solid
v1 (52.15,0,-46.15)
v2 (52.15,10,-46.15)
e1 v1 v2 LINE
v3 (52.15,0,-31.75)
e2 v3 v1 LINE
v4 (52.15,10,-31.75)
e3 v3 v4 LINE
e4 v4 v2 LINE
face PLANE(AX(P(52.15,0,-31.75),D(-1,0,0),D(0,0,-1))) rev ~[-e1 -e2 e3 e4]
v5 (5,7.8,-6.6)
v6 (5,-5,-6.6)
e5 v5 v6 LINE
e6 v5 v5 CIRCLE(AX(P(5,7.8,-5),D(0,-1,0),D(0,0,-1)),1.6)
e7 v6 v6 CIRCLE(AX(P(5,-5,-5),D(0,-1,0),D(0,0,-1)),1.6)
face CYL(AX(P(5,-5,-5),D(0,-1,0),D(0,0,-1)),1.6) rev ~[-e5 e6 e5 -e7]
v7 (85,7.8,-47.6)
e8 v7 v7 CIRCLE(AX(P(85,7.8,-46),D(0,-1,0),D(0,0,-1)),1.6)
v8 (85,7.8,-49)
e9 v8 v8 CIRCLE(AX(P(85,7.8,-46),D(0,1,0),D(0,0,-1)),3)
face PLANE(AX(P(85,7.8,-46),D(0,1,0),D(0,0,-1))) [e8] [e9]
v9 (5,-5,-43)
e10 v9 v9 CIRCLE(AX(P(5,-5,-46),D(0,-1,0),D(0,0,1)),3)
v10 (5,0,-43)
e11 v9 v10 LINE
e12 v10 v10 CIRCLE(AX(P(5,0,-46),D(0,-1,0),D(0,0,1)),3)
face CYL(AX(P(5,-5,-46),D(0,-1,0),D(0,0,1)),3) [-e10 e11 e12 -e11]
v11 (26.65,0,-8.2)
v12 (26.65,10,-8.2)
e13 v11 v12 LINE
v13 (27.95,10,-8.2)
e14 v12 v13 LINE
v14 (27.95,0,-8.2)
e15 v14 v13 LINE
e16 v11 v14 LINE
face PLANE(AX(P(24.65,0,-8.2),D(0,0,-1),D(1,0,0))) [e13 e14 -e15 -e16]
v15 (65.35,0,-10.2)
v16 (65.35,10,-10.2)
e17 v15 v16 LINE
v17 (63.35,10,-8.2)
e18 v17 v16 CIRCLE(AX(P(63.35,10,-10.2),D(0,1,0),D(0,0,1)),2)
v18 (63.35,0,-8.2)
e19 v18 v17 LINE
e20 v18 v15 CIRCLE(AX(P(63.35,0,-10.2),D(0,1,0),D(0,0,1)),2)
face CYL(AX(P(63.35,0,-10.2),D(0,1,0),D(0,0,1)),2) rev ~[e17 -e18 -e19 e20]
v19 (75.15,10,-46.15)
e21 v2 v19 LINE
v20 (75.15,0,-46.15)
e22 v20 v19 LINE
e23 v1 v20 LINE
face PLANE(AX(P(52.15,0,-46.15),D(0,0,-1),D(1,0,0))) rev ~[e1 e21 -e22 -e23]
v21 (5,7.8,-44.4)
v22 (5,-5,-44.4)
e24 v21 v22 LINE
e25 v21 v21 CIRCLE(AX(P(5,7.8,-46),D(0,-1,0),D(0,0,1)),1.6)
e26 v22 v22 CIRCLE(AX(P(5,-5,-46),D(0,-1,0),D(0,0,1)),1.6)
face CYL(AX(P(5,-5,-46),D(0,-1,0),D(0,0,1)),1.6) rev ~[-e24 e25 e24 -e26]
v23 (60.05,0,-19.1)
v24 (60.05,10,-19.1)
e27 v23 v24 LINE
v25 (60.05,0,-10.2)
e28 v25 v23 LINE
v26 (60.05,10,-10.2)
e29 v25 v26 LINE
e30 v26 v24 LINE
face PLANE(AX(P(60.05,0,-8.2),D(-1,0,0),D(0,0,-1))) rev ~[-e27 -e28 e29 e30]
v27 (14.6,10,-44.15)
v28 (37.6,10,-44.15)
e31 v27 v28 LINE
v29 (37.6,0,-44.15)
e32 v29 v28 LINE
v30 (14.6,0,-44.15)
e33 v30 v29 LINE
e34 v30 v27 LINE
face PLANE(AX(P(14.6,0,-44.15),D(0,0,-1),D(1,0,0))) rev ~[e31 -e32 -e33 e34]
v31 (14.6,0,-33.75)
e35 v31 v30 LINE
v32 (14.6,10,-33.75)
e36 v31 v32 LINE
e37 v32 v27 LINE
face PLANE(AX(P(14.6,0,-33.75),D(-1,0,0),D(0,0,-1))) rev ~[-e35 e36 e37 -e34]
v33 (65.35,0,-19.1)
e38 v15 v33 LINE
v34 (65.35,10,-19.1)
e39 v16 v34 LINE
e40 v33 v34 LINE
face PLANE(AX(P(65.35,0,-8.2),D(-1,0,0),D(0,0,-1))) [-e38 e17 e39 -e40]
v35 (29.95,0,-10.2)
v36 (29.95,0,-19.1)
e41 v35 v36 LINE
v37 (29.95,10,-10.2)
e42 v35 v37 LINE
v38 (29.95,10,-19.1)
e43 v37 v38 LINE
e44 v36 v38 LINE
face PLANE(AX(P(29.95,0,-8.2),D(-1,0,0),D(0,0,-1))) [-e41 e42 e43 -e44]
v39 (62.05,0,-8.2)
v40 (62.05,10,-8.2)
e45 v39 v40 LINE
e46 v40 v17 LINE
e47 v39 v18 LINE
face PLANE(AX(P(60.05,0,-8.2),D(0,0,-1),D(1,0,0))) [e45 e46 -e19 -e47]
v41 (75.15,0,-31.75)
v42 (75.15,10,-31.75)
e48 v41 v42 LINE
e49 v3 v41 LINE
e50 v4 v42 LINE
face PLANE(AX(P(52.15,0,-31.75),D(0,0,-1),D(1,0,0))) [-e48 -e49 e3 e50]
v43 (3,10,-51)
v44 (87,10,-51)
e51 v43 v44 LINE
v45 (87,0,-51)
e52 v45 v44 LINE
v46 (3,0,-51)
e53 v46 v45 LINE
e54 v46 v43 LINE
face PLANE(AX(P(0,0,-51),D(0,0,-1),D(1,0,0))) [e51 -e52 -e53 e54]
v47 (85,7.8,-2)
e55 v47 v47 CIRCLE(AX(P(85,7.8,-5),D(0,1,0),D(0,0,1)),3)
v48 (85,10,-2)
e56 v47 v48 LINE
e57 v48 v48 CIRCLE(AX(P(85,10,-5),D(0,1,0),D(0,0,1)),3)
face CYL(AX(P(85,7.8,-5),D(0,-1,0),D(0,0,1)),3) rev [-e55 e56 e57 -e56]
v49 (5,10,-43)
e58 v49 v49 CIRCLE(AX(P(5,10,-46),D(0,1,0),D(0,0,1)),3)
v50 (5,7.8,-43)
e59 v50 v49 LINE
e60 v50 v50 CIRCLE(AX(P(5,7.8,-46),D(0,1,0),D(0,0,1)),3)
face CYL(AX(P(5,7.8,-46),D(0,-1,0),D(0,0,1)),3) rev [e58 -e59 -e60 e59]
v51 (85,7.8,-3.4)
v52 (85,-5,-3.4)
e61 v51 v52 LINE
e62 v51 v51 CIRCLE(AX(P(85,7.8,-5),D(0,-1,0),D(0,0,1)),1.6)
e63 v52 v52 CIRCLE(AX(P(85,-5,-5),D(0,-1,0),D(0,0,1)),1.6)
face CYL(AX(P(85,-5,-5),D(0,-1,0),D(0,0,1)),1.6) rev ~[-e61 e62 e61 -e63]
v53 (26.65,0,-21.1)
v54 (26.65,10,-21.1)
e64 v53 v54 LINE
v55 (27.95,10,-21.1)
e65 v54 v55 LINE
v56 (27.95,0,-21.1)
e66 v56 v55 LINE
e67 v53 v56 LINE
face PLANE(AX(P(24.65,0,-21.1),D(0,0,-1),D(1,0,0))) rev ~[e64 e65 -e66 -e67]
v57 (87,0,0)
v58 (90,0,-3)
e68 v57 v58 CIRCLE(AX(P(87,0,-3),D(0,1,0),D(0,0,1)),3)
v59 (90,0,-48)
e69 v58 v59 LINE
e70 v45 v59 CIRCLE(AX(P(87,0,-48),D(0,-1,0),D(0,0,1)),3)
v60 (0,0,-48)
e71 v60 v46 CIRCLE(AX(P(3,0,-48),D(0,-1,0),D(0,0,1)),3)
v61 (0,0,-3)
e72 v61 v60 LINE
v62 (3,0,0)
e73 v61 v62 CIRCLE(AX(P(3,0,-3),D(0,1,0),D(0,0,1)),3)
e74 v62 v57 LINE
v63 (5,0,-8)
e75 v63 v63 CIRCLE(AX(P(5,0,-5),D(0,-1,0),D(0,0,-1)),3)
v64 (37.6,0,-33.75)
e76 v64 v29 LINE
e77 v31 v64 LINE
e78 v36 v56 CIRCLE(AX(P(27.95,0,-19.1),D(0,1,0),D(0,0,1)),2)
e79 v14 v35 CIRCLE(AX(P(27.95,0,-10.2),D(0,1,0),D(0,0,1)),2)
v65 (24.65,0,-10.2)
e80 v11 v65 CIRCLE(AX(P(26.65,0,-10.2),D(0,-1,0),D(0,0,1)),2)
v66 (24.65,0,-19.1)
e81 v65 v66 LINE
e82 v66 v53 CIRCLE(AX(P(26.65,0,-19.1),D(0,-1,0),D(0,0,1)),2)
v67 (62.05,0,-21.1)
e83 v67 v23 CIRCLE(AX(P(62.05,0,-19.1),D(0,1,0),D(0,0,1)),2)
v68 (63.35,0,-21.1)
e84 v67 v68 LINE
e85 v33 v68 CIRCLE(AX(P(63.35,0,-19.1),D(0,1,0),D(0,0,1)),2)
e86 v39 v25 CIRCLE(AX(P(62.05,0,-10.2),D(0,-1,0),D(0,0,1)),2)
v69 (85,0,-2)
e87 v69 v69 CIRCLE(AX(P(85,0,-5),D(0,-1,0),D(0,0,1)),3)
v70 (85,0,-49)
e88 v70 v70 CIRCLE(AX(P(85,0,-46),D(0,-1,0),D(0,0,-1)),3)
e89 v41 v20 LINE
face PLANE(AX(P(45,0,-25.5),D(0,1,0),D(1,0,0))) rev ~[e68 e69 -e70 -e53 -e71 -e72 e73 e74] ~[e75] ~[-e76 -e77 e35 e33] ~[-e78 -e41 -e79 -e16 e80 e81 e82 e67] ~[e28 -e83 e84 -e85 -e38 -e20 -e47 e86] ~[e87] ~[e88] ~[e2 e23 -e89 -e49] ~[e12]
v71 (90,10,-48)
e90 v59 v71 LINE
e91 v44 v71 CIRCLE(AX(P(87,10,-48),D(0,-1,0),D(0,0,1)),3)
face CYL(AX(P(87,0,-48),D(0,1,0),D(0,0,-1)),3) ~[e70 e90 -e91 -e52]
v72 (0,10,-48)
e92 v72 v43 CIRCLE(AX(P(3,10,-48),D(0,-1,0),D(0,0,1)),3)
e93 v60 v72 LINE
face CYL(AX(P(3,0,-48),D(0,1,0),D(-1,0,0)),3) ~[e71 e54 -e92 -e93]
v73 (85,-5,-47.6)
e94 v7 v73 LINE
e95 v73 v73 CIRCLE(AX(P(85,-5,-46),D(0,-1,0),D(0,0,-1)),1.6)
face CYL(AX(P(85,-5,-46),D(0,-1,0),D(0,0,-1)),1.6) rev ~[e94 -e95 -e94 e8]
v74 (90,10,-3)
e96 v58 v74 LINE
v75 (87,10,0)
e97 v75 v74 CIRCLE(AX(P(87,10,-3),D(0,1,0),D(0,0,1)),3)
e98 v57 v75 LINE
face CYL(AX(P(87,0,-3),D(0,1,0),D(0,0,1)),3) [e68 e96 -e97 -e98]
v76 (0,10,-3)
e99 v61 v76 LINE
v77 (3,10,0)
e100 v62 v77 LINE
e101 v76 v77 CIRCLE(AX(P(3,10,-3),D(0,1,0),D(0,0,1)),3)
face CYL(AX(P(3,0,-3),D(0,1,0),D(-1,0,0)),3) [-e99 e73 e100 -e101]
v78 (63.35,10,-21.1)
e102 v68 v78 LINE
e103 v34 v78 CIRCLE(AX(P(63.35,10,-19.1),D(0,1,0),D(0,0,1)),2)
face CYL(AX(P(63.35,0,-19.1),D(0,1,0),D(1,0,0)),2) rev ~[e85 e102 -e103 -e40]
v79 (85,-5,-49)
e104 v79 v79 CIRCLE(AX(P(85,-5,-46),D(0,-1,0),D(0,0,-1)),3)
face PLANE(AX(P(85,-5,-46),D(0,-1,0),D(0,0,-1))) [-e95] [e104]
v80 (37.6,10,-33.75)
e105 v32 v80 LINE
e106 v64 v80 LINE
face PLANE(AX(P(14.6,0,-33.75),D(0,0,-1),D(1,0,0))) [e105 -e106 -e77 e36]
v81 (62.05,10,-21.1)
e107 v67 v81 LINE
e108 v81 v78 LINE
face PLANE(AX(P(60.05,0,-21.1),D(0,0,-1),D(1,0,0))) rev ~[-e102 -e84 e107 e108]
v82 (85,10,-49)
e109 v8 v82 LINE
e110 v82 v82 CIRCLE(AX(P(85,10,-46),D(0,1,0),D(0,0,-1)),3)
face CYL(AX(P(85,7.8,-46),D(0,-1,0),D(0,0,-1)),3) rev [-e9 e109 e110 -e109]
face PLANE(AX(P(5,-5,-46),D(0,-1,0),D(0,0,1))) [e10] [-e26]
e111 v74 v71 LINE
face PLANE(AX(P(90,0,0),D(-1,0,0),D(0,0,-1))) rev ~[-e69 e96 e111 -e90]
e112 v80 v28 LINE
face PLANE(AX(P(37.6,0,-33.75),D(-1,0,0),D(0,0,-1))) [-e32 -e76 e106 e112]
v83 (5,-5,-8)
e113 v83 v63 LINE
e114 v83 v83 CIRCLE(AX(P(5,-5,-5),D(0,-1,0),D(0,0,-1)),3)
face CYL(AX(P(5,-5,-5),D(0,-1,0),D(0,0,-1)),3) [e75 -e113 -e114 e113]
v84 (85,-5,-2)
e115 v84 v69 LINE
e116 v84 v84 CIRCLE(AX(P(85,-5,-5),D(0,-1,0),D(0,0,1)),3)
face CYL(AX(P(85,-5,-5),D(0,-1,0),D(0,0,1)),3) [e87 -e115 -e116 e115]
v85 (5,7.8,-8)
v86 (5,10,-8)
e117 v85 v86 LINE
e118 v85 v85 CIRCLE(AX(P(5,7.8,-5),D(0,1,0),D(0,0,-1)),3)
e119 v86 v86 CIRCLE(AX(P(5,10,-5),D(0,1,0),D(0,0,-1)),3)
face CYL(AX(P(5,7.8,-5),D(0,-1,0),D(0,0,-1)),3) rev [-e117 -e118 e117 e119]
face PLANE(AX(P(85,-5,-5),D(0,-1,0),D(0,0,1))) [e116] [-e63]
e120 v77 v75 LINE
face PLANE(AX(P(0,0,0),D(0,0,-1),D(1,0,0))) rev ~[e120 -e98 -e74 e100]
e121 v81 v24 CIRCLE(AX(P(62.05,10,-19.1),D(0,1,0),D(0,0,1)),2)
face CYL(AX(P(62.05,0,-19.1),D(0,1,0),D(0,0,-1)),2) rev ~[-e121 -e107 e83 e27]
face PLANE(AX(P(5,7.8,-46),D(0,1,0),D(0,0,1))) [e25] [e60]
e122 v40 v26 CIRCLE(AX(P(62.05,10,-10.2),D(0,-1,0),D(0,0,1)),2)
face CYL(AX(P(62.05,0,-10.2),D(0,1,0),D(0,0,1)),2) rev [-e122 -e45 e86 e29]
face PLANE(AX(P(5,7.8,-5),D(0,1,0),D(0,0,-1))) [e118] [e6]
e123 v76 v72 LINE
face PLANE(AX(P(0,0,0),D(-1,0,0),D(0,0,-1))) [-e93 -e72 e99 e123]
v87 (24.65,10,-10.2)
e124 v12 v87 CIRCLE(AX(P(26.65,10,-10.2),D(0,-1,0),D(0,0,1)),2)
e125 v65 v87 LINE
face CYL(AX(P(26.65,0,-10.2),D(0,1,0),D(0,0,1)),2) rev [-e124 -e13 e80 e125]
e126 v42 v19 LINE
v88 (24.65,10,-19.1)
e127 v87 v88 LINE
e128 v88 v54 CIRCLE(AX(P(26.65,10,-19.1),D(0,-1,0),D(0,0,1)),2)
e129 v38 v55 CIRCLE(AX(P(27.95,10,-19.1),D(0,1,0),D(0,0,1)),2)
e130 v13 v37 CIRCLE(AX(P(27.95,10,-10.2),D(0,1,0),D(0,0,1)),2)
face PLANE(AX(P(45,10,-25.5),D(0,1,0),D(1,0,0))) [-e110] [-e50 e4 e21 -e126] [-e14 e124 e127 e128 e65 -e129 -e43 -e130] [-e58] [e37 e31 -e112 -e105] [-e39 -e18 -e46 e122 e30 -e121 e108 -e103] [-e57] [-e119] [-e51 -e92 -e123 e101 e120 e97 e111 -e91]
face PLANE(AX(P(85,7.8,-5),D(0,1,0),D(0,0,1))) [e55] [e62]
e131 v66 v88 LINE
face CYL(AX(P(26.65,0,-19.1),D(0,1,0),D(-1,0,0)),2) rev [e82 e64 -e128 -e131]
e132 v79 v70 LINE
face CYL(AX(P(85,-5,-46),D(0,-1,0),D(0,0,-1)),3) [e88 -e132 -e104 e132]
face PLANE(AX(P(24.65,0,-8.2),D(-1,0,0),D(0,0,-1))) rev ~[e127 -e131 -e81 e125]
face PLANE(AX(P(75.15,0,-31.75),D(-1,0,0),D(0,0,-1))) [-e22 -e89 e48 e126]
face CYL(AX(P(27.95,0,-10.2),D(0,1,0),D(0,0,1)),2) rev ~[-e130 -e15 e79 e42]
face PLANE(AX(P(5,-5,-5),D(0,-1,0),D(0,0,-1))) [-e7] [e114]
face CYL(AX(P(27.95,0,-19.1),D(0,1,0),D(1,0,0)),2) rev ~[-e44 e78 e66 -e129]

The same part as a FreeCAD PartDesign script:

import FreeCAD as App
import Part
import Sketcher


def edges_at(feature, points):
    """Names of the edges that pass closest to the given points."""
    edges = feature.Shape.Edges
    near = lambda p: min(range(len(edges)), key=lambda i: edges[i].distToShape(Part.Vertex(*p))[0])
    return sorted({f"Edge{near(p) + 1}" for p in points})

doc = App.newDocument("Part")
params = doc.addObject("Spreadsheet::Sheet", "Params")
for row, (alias, value) in enumerate([
    ("sketch1_diameter", "3.2 mm"),
    ("sketch1_width", "90 mm"),
    ("sketch1_width2", "23 mm"),
    ("sketch1_height", "51 mm"),
    ("sketch1_width3", "5.3 mm"),
    ("pad1_length", "10 mm"),
    ("fillet_radius", "2 mm"),
    ("sketch2_diameter", "6 mm"),
    ("sketch2_diameter2", "3.2 mm"),
    ("pad2_length", "5 mm"),
    ("fillet2_radius", "3 mm"),
    ("sketch3_diameter", "6 mm"),
    ("pocket1_length", "2.2 mm"),
], start=1):
    params.set(f"A{row}", alias)
    params.set(f"B{row}", "=" + value)
    params.setAlias(f"B{row}", alias)

body = doc.addObject("PartDesign::Body", "Body")

sketch1 = body.newObject("Sketcher::SketchObject", "Sketch")
sketch1.AttachmentSupport = (doc.getObject("XZ_Plane"), [""])
sketch1.MapMode = "FlatFace"
sketch1.addGeometry([
    Part.LineSegment(App.Vector(0, -51, 0), App.Vector(0, 0, 0)),
    Part.LineSegment(App.Vector(0, 0, 0), App.Vector(90, 0, 0)),
    Part.LineSegment(App.Vector(90, 0, 0), App.Vector(90, -51, 0)),
    Part.LineSegment(App.Vector(90, -51, 0), App.Vector(0, -51, 0)),
    Part.Circle(App.Vector(5, -5, 0), App.Vector(0, 0, 1), 1.6),
    Part.LineSegment(App.Vector(29.95, -8.2, 0), App.Vector(24.65, -8.2, 0)),
    Part.LineSegment(App.Vector(24.65, -8.2, 0), App.Vector(24.65, -21.1, 0)),
    Part.LineSegment(App.Vector(24.65, -21.1, 0), App.Vector(29.95, -21.1, 0)),
    Part.LineSegment(App.Vector(29.95, -21.1, 0), App.Vector(29.95, -8.2, 0)),
    Part.Circle(App.Vector(85, -5, 0), App.Vector(0, 0, 1), 1.6),
    Part.LineSegment(App.Vector(65.35, -8.2, 0), App.Vector(60.05, -8.2, 0)),
    Part.LineSegment(App.Vector(60.05, -8.2, 0), App.Vector(60.05, -21.1, 0)),
    Part.LineSegment(App.Vector(60.05, -21.1, 0), App.Vector(65.35, -21.1, 0)),
    Part.LineSegment(App.Vector(65.35, -21.1, 0), App.Vector(65.35, -8.2, 0)),
    Part.Circle(App.Vector(5, -46, 0), App.Vector(0, 0, 1), 1.6),
    Part.LineSegment(App.Vector(37.6, -33.75, 0), App.Vector(14.6, -33.75, 0)),
    Part.LineSegment(App.Vector(14.6, -33.75, 0), App.Vector(14.6, -44.15, 0)),
    Part.LineSegment(App.Vector(14.6, -44.15, 0), App.Vector(37.6, -44.15, 0)),
    Part.LineSegment(App.Vector(37.6, -44.15, 0), App.Vector(37.6, -33.75, 0)),
    Part.LineSegment(App.Vector(75.15, -31.75, 0), App.Vector(52.15, -31.75, 0)),
    Part.LineSegment(App.Vector(52.15, -31.75, 0), App.Vector(52.15, -46.15, 0)),
    Part.LineSegment(App.Vector(52.15, -46.15, 0), App.Vector(75.15, -46.15, 0)),
    Part.LineSegment(App.Vector(75.15, -46.15, 0), App.Vector(75.15, -31.75, 0)),
    Part.Circle(App.Vector(85, -46, 0), App.Vector(0, 0, 1), 1.6),
], False)
sketch1.addConstraint([
    Sketcher.Constraint("Coincident", 0, 2, 1, 1),
    Sketcher.Constraint("Coincident", 1, 2, 2, 1),
    Sketcher.Constraint("Coincident", 2, 2, 3, 1),
    Sketcher.Constraint("Coincident", 3, 2, 0, 1),
    Sketcher.Constraint("Coincident", 5, 2, 6, 1),
    Sketcher.Constraint("Coincident", 6, 2, 7, 1),
    Sketcher.Constraint("Coincident", 7, 2, 8, 1),
    Sketcher.Constraint("Coincident", 8, 2, 5, 1),
    Sketcher.Constraint("Coincident", 10, 2, 11, 1),
    Sketcher.Constraint("Coincident", 11, 2, 12, 1),
    Sketcher.Constraint("Coincident", 12, 2, 13, 1),
    Sketcher.Constraint("Coincident", 13, 2, 10, 1),
    Sketcher.Constraint("Coincident", 15, 2, 16, 1),
    Sketcher.Constraint("Coincident", 16, 2, 17, 1),
    Sketcher.Constraint("Coincident", 17, 2, 18, 1),
    Sketcher.Constraint("Coincident", 18, 2, 15, 1),
    Sketcher.Constraint("Coincident", 19, 2, 20, 1),
    Sketcher.Constraint("Coincident", 20, 2, 21, 1),
    Sketcher.Constraint("Coincident", 21, 2, 22, 1),
    Sketcher.Constraint("Coincident", 22, 2, 19, 1),
    Sketcher.Constraint("Vertical", 0),
    Sketcher.Constraint("Horizontal", 1),
    Sketcher.Constraint("Vertical", 2),
    Sketcher.Constraint("Horizontal", 3),
    Sketcher.Constraint("Horizontal", 5),
    Sketcher.Constraint("Vertical", 6),
    Sketcher.Constraint("Horizontal", 7),
    Sketcher.Constraint("Vertical", 8),
    Sketcher.Constraint("Horizontal", 10),
    Sketcher.Constraint("Vertical", 11),
    Sketcher.Constraint("Horizontal", 12),
    Sketcher.Constraint("Vertical", 13),
    Sketcher.Constraint("Horizontal", 15),
    Sketcher.Constraint("Vertical", 16),
    Sketcher.Constraint("Horizontal", 17),
    Sketcher.Constraint("Vertical", 18),
    Sketcher.Constraint("Horizontal", 19),
    Sketcher.Constraint("Vertical", 20),
    Sketcher.Constraint("Horizontal", 21),
    Sketcher.Constraint("Vertical", 22),
    Sketcher.Constraint("Coincident", 0, 2, -1, 1),
    Sketcher.Constraint("Equal", 4, 9),
    Sketcher.Constraint("Equal", 9, 14),
    Sketcher.Constraint("Equal", 14, 23),
    Sketcher.Constraint("Horizontal", 4, 3, 9, 3),
    Sketcher.Constraint("Horizontal", 14, 3, 23, 3),
    Sketcher.Constraint("Horizontal", 8, 2, 10, 2),
    Sketcher.Constraint("Horizontal", 7, 2, 11, 2),
    Sketcher.Constraint("Vertical", 4, 3, 14, 3),
    Sketcher.Constraint("Vertical", 9, 3, 23, 3),
    Sketcher.Constraint("Equal", 7, 10),
    Sketcher.Constraint("Equal", 17, 19),
    Sketcher.Constraint("Diameter", 4, 3.2),
    Sketcher.Constraint("DistanceX", 1, 1, 1, 2, 90.0),
    Sketcher.Constraint("DistanceX", 15, 2, 15, 1, 23.0),
    Sketcher.Constraint("DistanceY", 0, 1, 0, 2, 51.0),
    Sketcher.Constraint("DistanceX", 5, 2, 5, 1, 5.3),
    Sketcher.Constraint("DistanceY", 6, 2, 6, 1, 12.9),
    Sketcher.Constraint("DistanceY", 16, 2, 16, 1, 10.4),
    Sketcher.Constraint("DistanceY", 20, 2, 20, 1, 14.4),
    Sketcher.Constraint("DistanceX", -1, 1, 4, 3, 5.0),
    Sketcher.Constraint("DistanceY", 4, 3, -1, 1, 5.0),
    Sketcher.Constraint("DistanceX", -1, 1, 9, 3, 85.0),
    Sketcher.Constraint("DistanceY", 14, 3, -1, 1, 46.0),
    Sketcher.Constraint("DistanceY", 18, 2, 19, 2, 2.0),
    Sketcher.Constraint("DistanceY", 5, 2, -1, 1, 8.2),
    Sketcher.Constraint("DistanceX", -1, 1, 15, 2, 14.6),
    Sketcher.Constraint("DistanceX", 8, 2, 10, 2, 30.1),
    Sketcher.Constraint("DistanceX", 19, 2, 11, 2, 7.9),
    Sketcher.Constraint("DistanceX", -1, 1, 5, 2, 24.65),
    Sketcher.Constraint("DistanceY", 15, 2, -1, 1, 33.75),
])
sketch1.setExpression("Constraints[52]", "Params.sketch1_diameter")
sketch1.setExpression("Constraints[53]", "Params.sketch1_width")
sketch1.setExpression("Constraints[54]", "Params.sketch1_width2")
sketch1.setExpression("Constraints[55]", "Params.sketch1_height")
sketch1.setExpression("Constraints[56]", "Params.sketch1_width3")
pad1 = body.newObject("PartDesign::Pad", "Pad")
pad1.Profile = sketch1
pad1.setExpression("Length", "Params.pad1_length")
pad1.Reversed = True
doc.recompute()

fillet = body.newObject("PartDesign::Fillet", "Fillet")
fillet.Base = (pad1, edges_at(pad1, [
    (60.05, 5, -21.1),
    (60.05, 5, -8.2),
    (65.35, 5, -8.2),
    (65.35, 5, -21.1),
    (29.95, 5, -21.1),
    (24.65, 5, -21.1),
    (24.65, 5, -8.2),
    (29.95, 5, -8.2),
]))
fillet.setExpression("Radius", "Params.fillet_radius")

sketch2 = body.newObject("Sketcher::SketchObject", "Sketch001")
sketch2.AttachmentSupport = (doc.getObject("XZ_Plane"), [""])
sketch2.MapMode = "FlatFace"
sketch2.AttachmentOffset = App.Placement(App.Vector(0, 0, 5), App.Rotation())
sketch2.addGeometry([
    Part.Circle(App.Vector(5, -5, 0), App.Vector(0, 0, 1), 3),
    Part.Circle(App.Vector(5, -5, 0), App.Vector(0, 0, 1), 1.6),
    Part.Circle(App.Vector(85, -5, 0), App.Vector(0, 0, 1), 3),
    Part.Circle(App.Vector(85, -5, 0), App.Vector(0, 0, 1), 1.6),
    Part.Circle(App.Vector(85, -46, 0), App.Vector(0, 0, 1), 3),
    Part.Circle(App.Vector(85, -46, 0), App.Vector(0, 0, 1), 1.6),
    Part.Circle(App.Vector(5, -46, 0), App.Vector(0, 0, 1), 3),
    Part.Circle(App.Vector(5, -46, 0), App.Vector(0, 0, 1), 1.6),
], False)
sketch2.addConstraint([
    Sketcher.Constraint("Coincident", 1, 3, 0, 3),
    Sketcher.Constraint("Coincident", 3, 3, 2, 3),
    Sketcher.Constraint("Coincident", 5, 3, 4, 3),
    Sketcher.Constraint("Coincident", 7, 3, 6, 3),
    Sketcher.Constraint("Equal", 0, 2),
    Sketcher.Constraint("Equal", 1, 3),
    Sketcher.Constraint("Equal", 2, 4),
    Sketcher.Constraint("Equal", 3, 5),
    Sketcher.Constraint("Equal", 4, 6),
    Sketcher.Constraint("Equal", 5, 7),
    Sketcher.Constraint("Horizontal", 1, 3, 2, 3),
    Sketcher.Constraint("Horizontal", 5, 3, 6, 3),
    Sketcher.Constraint("Vertical", 3, 3, 4, 3),
    Sketcher.Constraint("Vertical", 1, 3, 6, 3),
    Sketcher.Constraint("Diameter", 0, 6.0),
    Sketcher.Constraint("Diameter", 1, 3.2),
    Sketcher.Constraint("DistanceX", -1, 1, 0, 3, 5.0),
    Sketcher.Constraint("DistanceY", 0, 3, -1, 1, 5.0),
    Sketcher.Constraint("DistanceX", -1, 1, 2, 3, 85.0),
    Sketcher.Constraint("DistanceY", 4, 3, -1, 1, 46.0),
])
sketch2.setExpression("Constraints[14]", "Params.sketch2_diameter")
sketch2.setExpression("Constraints[15]", "Params.sketch2_diameter2")
pad2 = body.newObject("PartDesign::Pad", "Pad001")
pad2.Profile = sketch2
pad2.setExpression("Length", "Params.pad2_length")
pad2.Reversed = True
doc.recompute()

fillet2 = body.newObject("PartDesign::Fillet", "Fillet001")
fillet2.Base = (pad2, edges_at(pad2, [
    (0, 5, -51),
    (90, 5, -51),
    (90, 5, 0),
    (0, 5, 0),
]))
fillet2.setExpression("Radius", "Params.fillet2_radius")

sketch3 = body.newObject("Sketcher::SketchObject", "Sketch002")
sketch3.AttachmentSupport = (doc.getObject("XZ_Plane"), [""])
sketch3.MapMode = "FlatFace"
sketch3.AttachmentOffset = App.Placement(App.Vector(0, 0, -7.8), App.Rotation())
sketch3.addGeometry([
    Part.Circle(App.Vector(5, -46, 0), App.Vector(0, 0, 1), 3),
    Part.Circle(App.Vector(85, -46, 0), App.Vector(0, 0, 1), 3),
    Part.Circle(App.Vector(85, -5, 0), App.Vector(0, 0, 1), 3),
    Part.Circle(App.Vector(5, -5, 0), App.Vector(0, 0, 1), 3),
], False)
sketch3.addConstraint([
    Sketcher.Constraint("Equal", 0, 1),
    Sketcher.Constraint("Equal", 1, 2),
    Sketcher.Constraint("Equal", 2, 3),
    Sketcher.Constraint("Horizontal", 0, 3, 1, 3),
    Sketcher.Constraint("Horizontal", 2, 3, 3, 3),
    Sketcher.Constraint("Vertical", 1, 3, 2, 3),
    Sketcher.Constraint("Vertical", 0, 3, 3, 3),
    Sketcher.Constraint("Diameter", 0, 6.0),
    Sketcher.Constraint("DistanceX", -1, 1, 0, 3, 5.0),
    Sketcher.Constraint("DistanceY", 0, 3, -1, 1, 46.0),
    Sketcher.Constraint("DistanceX", -1, 1, 1, 3, 85.0),
    Sketcher.Constraint("DistanceY", 2, 3, -1, 1, 5.0),
])
sketch3.setExpression("Constraints[7]", "Params.sketch3_diameter")
pocket1 = body.newObject("PartDesign::Pocket", "Pocket")
pocket1.Profile = sketch3
pocket1.setExpression("Length", "Params.pocket1_length")

doc.recompute()
